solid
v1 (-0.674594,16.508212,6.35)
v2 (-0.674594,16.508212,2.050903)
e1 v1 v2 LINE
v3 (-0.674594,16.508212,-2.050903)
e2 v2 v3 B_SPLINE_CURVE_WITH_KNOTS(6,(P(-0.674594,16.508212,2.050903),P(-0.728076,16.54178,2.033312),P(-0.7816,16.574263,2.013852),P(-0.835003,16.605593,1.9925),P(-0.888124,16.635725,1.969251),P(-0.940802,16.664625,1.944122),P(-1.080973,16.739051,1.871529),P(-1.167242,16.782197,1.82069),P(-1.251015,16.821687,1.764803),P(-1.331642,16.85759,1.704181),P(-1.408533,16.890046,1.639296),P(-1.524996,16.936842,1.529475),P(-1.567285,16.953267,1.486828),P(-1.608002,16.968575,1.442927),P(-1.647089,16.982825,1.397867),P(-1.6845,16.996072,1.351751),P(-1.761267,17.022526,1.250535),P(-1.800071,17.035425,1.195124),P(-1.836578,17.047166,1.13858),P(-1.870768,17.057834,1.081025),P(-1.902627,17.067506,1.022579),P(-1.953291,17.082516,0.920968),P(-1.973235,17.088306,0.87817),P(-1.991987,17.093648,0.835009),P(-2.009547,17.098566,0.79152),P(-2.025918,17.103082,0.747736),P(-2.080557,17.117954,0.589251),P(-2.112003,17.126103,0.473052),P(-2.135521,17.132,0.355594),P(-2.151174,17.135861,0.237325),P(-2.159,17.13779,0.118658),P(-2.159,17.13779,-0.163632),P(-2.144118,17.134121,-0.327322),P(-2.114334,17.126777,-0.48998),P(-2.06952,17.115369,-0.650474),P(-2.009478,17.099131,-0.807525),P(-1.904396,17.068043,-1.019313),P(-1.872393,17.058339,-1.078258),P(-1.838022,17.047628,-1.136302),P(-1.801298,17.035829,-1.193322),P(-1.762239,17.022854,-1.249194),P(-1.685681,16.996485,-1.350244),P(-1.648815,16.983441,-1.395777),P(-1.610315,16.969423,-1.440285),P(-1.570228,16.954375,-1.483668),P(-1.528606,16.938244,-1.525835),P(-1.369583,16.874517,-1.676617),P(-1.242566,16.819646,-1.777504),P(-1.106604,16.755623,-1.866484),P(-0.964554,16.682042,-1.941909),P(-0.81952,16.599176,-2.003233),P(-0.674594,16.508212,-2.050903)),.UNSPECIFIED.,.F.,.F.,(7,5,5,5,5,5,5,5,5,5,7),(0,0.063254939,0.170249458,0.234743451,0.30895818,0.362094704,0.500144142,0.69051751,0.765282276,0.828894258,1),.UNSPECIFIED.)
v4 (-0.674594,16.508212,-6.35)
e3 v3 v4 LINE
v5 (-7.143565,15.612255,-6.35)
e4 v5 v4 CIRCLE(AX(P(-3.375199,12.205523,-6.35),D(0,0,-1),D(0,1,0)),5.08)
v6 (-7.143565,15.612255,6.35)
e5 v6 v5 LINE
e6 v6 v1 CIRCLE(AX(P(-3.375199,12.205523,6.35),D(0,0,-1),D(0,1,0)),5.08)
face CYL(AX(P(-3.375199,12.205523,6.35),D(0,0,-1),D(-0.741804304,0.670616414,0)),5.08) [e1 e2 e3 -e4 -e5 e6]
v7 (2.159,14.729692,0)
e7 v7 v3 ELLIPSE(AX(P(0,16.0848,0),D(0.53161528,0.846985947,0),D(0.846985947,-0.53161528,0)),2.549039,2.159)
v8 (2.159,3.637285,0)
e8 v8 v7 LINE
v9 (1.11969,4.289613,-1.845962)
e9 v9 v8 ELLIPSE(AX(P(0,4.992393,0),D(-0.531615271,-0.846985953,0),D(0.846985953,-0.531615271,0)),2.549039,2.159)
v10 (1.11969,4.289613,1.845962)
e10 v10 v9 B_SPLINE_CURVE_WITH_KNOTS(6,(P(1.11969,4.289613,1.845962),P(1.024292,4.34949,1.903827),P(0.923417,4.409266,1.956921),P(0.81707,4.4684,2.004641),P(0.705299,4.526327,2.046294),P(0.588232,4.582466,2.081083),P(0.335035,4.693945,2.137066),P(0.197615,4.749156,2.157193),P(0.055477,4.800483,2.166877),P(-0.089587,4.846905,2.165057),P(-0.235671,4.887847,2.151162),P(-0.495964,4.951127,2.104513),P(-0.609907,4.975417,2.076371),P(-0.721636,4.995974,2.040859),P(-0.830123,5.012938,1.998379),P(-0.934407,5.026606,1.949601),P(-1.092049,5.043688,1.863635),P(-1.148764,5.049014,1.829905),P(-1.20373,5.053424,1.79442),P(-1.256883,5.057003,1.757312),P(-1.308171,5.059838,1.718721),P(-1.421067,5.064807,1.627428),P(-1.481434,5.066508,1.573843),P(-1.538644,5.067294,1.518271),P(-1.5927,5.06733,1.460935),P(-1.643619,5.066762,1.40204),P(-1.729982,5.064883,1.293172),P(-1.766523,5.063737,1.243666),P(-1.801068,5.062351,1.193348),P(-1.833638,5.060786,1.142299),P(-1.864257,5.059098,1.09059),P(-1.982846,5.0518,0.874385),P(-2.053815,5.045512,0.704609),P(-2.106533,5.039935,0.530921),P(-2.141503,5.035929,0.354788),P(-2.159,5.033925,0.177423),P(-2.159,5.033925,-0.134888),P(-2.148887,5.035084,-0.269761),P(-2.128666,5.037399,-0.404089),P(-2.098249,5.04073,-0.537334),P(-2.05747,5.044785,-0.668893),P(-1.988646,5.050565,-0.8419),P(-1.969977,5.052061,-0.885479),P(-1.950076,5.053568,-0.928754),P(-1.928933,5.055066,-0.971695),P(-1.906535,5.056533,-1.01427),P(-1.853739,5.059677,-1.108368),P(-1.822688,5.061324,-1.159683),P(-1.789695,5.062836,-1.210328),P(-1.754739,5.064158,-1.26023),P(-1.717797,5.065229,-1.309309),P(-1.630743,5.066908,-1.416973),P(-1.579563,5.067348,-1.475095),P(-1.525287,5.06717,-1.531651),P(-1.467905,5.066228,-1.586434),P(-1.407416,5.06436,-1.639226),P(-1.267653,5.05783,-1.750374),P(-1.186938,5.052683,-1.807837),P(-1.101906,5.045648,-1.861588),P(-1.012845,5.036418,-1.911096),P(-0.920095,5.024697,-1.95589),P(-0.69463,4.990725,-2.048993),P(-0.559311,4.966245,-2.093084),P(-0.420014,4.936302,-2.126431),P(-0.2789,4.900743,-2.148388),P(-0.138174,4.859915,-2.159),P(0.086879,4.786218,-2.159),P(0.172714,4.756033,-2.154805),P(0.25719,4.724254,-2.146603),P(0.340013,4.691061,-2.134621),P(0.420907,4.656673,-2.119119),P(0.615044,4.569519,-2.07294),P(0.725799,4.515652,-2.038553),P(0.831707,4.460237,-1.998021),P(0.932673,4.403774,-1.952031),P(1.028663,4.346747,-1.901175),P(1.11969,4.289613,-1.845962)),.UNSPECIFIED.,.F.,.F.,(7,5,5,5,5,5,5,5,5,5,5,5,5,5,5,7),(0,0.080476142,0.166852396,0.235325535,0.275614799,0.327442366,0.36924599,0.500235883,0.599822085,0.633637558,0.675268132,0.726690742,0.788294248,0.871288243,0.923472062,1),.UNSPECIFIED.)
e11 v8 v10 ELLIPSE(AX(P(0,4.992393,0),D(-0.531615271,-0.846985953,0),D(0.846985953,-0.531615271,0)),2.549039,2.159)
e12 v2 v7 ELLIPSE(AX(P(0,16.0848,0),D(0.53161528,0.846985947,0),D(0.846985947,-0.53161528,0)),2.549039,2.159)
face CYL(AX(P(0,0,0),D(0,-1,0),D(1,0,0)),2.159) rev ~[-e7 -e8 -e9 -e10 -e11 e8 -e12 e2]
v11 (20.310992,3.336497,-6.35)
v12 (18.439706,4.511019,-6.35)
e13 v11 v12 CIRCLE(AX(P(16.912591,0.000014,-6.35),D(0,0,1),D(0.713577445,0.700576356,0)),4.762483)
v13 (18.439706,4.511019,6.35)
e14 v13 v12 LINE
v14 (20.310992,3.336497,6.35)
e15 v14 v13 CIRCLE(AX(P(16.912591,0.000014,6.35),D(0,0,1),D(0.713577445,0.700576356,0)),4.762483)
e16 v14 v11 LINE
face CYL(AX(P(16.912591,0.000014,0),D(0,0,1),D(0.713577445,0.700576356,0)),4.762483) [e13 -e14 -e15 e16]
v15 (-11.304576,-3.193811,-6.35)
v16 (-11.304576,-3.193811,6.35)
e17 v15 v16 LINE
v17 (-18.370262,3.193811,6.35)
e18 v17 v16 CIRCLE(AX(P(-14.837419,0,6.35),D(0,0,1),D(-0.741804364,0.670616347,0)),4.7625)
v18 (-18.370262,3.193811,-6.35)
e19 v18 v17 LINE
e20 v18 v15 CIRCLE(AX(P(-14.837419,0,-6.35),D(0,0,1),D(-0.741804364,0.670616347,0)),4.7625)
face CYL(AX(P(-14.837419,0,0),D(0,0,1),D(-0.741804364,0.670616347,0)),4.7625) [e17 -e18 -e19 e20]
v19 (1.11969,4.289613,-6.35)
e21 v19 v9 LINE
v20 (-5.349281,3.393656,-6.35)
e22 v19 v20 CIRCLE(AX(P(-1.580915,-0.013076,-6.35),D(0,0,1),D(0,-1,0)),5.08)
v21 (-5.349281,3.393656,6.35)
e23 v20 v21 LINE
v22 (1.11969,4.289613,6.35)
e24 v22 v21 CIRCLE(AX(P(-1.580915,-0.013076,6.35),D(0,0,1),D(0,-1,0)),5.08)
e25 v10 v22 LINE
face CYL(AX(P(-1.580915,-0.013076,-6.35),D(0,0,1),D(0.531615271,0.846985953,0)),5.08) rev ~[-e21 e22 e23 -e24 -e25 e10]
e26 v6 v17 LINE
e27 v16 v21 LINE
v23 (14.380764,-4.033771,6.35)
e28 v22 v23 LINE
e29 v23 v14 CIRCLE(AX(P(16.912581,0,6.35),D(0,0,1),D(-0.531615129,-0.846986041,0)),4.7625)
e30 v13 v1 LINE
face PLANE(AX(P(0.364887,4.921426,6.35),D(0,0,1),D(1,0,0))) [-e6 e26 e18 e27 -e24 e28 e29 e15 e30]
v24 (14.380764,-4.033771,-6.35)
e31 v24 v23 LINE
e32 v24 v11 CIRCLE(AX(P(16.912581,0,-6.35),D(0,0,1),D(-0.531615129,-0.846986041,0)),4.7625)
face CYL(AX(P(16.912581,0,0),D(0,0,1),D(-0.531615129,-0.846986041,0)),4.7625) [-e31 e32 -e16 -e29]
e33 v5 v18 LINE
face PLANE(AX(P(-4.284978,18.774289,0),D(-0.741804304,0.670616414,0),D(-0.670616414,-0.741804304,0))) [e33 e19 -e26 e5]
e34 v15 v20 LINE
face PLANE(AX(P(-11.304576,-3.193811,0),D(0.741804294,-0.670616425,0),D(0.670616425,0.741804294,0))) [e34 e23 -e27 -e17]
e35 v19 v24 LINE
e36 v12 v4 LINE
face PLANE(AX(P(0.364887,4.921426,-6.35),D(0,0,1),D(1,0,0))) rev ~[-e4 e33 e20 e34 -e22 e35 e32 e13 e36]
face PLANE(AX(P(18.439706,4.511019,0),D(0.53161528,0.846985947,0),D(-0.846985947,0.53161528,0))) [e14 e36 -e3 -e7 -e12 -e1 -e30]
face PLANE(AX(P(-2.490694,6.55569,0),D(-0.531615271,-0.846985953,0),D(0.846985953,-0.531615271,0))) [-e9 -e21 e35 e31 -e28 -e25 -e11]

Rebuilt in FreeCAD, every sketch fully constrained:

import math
import FreeCAD as App
import Part
import Sketcher

V = App.Vector
Q = App.Units.Quantity


def edges_at(feature, points):
    """Names of the edges that pass closest to the given points."""
    edges = feature.Shape.Edges
    near = lambda p: min(range(len(edges)), key=lambda i: edges[i].distToShape(Part.Vertex(*p))[0])
    return sorted({f"Edge{near(p) + 1}" for p in points})

doc = App.newDocument("Part")
params = doc.addObject("Spreadsheet::Sheet", "Params")
for row, (alias, value) in enumerate([
    ("sketch1_radius", "0.1875 in"),
    ("sketch1_radius2", "0.1875 in"),
    ("pad1_length", "0.5 in"),
    ("fillet_radius", "0.2 in"),
    ("sketch2_diameter", "0.17 in"),
], start=1):
    params.set(f"A{row}", alias)
    params.set(f"B{row}", "=" + value)
    params.setAlias(f"B{row}", alias)

body = doc.addObject("PartDesign::Body", "Body")

sketch1 = body.newObject("Sketcher::SketchObject", "Sketch")
sketch1.AttachmentSupport = (doc.getObject("XY_Plane"), [""])
sketch1.MapMode = "FlatFace"
sketch1.addGeometry([
    Part.LineSegment(V(-4.284978, 18.774289, 0), V(-18.370262, 3.193811, 0)),
    Part.ArcOfCircle(Part.Circle(V(-14.837419, 0, 0), V(0, 0, 1), 4.7625), math.radians(137.885347), math.radians(317.885331)),
    Part.LineSegment(V(-11.304576, -3.193811, 0), V(-2.490694, 6.55569, 0)),
    Part.LineSegment(V(-2.490694, 6.55569, 0), V(14.380764, -4.033771, 0)),
    Part.ArcOfCircle(Part.Circle(V(16.912581, 0, 0), V(0, 0, 1), 4.7625), math.radians(-122.114648), math.radians(44.473295)),
    Part.ArcOfCircle(Part.Circle(V(16.912591, 0.000014, 0), V(0, 0, 1), 4.762483), math.radians(44.473263), math.radians(71.297452)),
    Part.LineSegment(V(18.439706, 4.511019, 0), V(-4.284978, 18.774289, 0)),
], False)
sketch1.addConstraint([
    Sketcher.Constraint("Coincident", 0, 2, 1, 1),
    Sketcher.Constraint("Coincident", 1, 2, 2, 1),
    Sketcher.Constraint("Coincident", 2, 2, 3, 1),
    Sketcher.Constraint("Coincident", 3, 2, 4, 1),
    Sketcher.Constraint("Coincident", 4, 2, 5, 1),
    Sketcher.Constraint("Coincident", 5, 2, 6, 1),
    Sketcher.Constraint("Coincident", 6, 2, 0, 1),
    Sketcher.Constraint("PointOnObject", 1, 3, -1),
    Sketcher.Constraint("PointOnObject", 4, 3, -1),
    Sketcher.Constraint("Radius", 1, Q("0.1875 in")),
    Sketcher.Constraint("Radius", 4, Q("0.1875 in")),
    Sketcher.Constraint("DistanceX", 1, 3, 4, 3, Q("1.25 in")),
    Sketcher.Constraint("DistanceX", 6, 2, -1, 1, Q("0.1686999 in")),
    Sketcher.Constraint("Radius", 5, Q("4.762483 mm")),
    Sketcher.Constraint("DistanceY", 1, 2, 2, 2, Q("9.749501 mm")),
    Sketcher.Constraint("DistanceX", 5, 3, 4, 2, Q("3.398401 mm")),
    Sketcher.Constraint("DistanceX", 2, 2, 5, 2, Q("20.9304 mm")),
    Sketcher.Constraint("DistanceY", 2, 2, 6, 2, Q("12.218599 mm")),
    Sketcher.Constraint("Distance", 0, Q("21.003488 mm")),
    Sketcher.Constraint("Distance", 6, Q("26.83006 mm")),
    Sketcher.Constraint("DistanceX", 1, 3, -1, 1, Q("14.837419 mm")),
    Sketcher.Constraint("DistanceX", -1, 1, 5, 3, Q("16.912591 mm")),
    Sketcher.Constraint("DistanceY", -1, 1, 0, 2, Q("3.193811 mm")),
    Sketcher.Constraint("DistanceY", 3, 2, -1, 1, Q("4.033771 mm")),
])
sketch1.setExpression("Constraints[9]", "Params.sketch1_radius")
sketch1.setExpression("Constraints[10]", "Params.sketch1_radius2")
pad1 = body.newObject("PartDesign::Pad", "Pad")
pad1.Profile = sketch1
pad1.setExpression("Length", "Params.pad1_length")
pad1.Midplane = True
doc.recompute()

fillet = body.newObject("PartDesign::Fillet", "Fillet")
fillet.Base = (pad1, edges_at(pad1, [(-4.285, 18.774, 0), (-2.491, 6.556, 0)]))
fillet.setExpression("Radius", "Params.fillet_radius")

sketch2 = body.newObject("Sketcher::SketchObject", "Sketch001")
sketch2.AttachmentSupport = (doc.getObject("XZ_Plane"), [""])
sketch2.MapMode = "FlatFace"
sketch2.addGeometry(Part.Circle(V(0, 0, 0), V(0, 0, 1), 2.159), False)
sketch2.addConstraint([
    Sketcher.Constraint("Coincident", 0, 3, -1, 1),
    Sketcher.Constraint("Diameter", 0, Q("0.17 in")),
])
sketch2.setExpression("Constraints[1]", "Params.sketch2_diameter")
pocket1 = body.newObject("PartDesign::Pocket", "Pocket")
pocket1.Profile = sketch2
pocket1.Type = "ThroughAll"

doc.recompute()
